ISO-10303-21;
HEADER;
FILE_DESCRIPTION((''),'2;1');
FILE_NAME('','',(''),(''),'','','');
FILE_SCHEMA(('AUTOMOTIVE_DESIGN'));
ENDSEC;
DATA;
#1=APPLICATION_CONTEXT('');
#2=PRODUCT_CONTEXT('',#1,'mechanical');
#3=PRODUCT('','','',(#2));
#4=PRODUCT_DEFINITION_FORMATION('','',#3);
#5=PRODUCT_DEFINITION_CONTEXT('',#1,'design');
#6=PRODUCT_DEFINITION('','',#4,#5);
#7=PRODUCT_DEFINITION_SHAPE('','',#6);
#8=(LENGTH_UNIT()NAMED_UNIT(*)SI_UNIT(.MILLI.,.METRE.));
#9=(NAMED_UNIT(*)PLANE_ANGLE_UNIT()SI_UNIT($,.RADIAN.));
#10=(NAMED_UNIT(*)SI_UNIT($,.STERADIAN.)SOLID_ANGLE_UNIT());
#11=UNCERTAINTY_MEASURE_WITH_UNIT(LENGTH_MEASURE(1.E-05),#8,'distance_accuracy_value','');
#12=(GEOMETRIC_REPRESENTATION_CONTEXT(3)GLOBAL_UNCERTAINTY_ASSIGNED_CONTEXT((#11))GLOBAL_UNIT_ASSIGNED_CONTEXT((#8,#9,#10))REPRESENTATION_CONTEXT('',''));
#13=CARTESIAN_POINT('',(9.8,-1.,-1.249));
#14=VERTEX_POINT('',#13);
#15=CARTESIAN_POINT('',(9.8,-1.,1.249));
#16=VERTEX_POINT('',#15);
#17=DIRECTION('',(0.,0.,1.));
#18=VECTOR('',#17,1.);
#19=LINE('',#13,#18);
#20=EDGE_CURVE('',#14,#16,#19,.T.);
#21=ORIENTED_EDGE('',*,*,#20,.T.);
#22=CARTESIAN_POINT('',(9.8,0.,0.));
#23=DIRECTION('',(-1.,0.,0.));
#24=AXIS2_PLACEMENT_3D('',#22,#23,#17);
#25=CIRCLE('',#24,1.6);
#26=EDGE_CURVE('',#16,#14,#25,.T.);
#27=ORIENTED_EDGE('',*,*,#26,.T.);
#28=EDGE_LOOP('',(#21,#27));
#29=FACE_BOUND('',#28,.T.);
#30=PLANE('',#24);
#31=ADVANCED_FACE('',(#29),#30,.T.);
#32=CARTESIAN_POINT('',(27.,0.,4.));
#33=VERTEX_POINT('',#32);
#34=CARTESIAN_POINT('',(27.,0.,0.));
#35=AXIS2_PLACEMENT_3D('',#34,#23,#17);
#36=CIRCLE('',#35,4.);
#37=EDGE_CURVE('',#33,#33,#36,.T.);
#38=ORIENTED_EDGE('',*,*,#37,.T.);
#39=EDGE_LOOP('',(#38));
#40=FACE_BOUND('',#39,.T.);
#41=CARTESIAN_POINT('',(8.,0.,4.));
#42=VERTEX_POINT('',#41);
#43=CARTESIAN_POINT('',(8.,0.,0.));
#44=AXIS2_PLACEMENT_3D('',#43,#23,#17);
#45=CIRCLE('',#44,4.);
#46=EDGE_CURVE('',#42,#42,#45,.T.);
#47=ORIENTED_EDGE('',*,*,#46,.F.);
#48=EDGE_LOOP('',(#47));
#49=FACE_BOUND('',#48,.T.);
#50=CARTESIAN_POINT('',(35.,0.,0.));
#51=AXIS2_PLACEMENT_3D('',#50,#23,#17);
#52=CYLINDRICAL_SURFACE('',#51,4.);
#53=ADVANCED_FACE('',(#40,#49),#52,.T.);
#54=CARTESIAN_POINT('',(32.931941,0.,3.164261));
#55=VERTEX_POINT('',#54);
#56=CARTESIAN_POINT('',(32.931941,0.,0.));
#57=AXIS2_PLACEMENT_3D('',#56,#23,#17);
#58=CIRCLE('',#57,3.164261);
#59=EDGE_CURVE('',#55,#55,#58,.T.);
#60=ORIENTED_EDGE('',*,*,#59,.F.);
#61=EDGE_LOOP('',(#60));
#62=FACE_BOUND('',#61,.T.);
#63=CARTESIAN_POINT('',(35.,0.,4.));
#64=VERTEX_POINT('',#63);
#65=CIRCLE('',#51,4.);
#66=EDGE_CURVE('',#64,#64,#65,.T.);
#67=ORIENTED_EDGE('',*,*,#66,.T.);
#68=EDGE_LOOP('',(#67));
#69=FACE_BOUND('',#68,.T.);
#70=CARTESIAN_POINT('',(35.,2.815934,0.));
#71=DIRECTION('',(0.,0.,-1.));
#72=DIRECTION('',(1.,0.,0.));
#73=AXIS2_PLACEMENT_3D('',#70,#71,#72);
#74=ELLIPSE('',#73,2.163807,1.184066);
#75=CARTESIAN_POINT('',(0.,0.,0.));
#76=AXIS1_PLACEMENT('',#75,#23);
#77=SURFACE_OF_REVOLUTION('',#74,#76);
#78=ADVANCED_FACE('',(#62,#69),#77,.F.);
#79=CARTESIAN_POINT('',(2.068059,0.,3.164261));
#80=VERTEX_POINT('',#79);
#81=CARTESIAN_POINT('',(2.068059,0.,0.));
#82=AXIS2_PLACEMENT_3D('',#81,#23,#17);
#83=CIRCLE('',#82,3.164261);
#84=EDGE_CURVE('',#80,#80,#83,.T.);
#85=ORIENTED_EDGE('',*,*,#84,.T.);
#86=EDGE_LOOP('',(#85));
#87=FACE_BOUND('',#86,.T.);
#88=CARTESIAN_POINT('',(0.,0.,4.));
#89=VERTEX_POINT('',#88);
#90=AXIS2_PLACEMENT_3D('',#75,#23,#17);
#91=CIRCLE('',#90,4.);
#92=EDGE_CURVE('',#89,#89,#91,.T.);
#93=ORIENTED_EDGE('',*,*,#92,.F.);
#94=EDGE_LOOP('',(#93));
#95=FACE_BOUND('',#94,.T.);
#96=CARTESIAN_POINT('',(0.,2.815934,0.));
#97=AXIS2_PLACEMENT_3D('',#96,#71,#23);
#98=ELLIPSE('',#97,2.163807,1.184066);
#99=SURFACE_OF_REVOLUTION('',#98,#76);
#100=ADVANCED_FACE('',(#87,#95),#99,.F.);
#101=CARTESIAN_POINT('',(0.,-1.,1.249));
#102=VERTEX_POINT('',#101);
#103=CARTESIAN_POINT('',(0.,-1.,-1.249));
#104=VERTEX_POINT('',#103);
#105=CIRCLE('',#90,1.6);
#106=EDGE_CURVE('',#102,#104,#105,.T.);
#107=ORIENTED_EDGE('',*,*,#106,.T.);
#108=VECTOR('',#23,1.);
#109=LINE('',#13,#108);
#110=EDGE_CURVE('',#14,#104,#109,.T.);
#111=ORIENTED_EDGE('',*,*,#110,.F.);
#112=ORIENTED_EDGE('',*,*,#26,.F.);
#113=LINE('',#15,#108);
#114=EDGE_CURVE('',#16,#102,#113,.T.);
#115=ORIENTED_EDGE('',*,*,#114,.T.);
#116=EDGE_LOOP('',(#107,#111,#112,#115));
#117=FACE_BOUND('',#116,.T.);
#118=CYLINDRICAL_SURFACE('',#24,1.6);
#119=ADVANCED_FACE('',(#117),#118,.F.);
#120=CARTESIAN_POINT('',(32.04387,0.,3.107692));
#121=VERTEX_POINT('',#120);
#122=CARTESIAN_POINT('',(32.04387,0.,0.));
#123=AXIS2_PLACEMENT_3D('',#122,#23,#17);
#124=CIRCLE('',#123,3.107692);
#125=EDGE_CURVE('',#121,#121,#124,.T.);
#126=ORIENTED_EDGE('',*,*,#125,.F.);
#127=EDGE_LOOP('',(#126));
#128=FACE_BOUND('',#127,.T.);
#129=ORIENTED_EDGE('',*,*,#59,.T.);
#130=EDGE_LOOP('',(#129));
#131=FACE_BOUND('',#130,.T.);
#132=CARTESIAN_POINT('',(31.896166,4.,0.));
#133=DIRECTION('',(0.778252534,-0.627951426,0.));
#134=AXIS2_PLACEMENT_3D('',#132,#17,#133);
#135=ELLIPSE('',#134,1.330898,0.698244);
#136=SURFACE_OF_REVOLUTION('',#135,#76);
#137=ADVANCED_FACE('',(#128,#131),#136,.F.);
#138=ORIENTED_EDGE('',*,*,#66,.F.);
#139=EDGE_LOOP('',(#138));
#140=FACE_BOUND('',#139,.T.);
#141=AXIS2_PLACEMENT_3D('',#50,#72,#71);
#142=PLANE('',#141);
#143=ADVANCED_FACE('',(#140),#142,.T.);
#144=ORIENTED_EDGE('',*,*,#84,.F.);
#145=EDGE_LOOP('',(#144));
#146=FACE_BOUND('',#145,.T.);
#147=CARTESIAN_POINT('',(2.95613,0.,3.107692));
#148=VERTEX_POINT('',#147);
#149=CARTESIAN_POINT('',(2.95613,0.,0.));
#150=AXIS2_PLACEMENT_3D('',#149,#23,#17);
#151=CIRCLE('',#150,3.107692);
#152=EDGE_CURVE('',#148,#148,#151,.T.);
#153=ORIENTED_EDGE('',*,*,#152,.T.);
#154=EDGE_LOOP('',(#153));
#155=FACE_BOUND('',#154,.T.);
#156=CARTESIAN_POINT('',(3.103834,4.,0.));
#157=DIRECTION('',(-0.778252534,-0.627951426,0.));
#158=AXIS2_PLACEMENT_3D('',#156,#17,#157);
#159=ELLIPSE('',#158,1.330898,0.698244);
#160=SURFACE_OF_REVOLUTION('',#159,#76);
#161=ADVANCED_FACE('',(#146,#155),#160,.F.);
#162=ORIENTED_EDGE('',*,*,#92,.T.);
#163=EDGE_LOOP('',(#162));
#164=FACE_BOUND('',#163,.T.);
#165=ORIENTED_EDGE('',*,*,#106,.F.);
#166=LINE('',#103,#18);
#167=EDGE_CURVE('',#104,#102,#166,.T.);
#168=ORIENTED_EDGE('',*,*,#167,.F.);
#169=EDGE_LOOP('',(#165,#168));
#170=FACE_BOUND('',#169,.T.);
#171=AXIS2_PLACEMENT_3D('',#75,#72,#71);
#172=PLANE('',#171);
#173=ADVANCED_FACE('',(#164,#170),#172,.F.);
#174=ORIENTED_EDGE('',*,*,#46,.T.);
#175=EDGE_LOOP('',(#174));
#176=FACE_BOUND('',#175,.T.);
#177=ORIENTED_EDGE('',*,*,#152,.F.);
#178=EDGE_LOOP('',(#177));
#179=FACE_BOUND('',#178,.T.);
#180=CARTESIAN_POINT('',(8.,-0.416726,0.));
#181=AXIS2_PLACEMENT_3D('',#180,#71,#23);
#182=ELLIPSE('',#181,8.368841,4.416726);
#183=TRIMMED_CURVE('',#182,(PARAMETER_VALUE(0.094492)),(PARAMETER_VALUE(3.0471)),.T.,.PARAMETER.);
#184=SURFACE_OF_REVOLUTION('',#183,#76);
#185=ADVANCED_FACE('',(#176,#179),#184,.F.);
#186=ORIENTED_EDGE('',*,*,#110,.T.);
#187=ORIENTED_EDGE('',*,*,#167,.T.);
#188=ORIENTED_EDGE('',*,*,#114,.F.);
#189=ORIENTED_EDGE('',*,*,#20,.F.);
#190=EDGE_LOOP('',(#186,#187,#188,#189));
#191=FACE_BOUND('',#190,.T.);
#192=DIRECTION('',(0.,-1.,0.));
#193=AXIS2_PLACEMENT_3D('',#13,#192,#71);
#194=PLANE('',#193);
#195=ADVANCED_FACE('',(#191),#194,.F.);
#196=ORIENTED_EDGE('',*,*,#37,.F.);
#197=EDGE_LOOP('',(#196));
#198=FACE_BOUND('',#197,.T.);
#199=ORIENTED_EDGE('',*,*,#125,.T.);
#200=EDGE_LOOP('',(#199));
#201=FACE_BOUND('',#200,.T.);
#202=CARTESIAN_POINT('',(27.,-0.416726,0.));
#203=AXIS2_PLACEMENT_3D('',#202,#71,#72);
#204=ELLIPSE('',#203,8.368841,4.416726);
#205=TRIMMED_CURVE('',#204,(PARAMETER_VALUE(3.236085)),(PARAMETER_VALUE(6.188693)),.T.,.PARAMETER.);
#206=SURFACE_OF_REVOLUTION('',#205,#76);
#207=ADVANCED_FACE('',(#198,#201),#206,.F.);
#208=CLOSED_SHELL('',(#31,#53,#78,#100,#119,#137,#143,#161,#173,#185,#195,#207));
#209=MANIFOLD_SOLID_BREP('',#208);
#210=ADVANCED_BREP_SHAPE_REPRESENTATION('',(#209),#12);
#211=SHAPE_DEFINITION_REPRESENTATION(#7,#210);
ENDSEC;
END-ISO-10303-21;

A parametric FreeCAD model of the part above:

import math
import FreeCAD as App
import Part
import Sketcher
from FreeCAD import Vector

doc = App.newDocument("Part")
body = doc.addObject("PartDesign::Body", "Body")

# Sketch on YZ plane
sketch1 = body.newObject("Sketcher::SketchObject", "Sketch")
sketch1.AttachmentSupport = (doc.getObject("YZ_Plane"), [""])
sketch1.MapMode = "FlatFace"
sketch1.addGeometry(Part.Circle(Vector(0, 0, 0), Vector(0, 0, 1), 4), False)
sketch1.addConstraint(Sketcher.Constraint("Coincident", 0, 3, -1, 1))
sketch1.addConstraint(Sketcher.Constraint("Diameter", 0, 8.0))
pad1 = body.newObject("PartDesign::Pad", "Pad")
pad1.Profile = sketch1
pad1.Length = 35

# Sketch on YZ plane
sketch2 = body.newObject("Sketcher::SketchObject", "Sketch001")
sketch2.AttachmentSupport = (doc.getObject("YZ_Plane"), [""])
sketch2.MapMode = "FlatFace"
sketch2.addGeometry(Part.LineSegment(Vector(-1, -1.249, 0), Vector(-1, 1.249, 0)), False)
sketch2.addGeometry(Part.ArcOfCircle(Part.Circle(Vector(0, 0, 0), Vector(0, 0, 1), 1.6), math.radians(-128.682187), math.radians(128.682187)), False)
sketch2.addConstraint(Sketcher.Constraint("Coincident", 0, 1, 1, 1))
sketch2.addConstraint(Sketcher.Constraint("Coincident", 1, 2, 0, 2))
sketch2.addConstraint(Sketcher.Constraint("Vertical", 0))
sketch2.addConstraint(Sketcher.Constraint("Coincident", 1, 3, -1, 1))
sketch2.addConstraint(Sketcher.Constraint("Radius", 1, 1.6))
sketch2.addConstraint(Sketcher.Constraint("DistanceX", 0, 1, -1, 1, 1.0))
pocket1 = body.newObject("PartDesign::Pocket", "Pocket")
pocket1.Profile = sketch2
pocket1.Length = 9.8
pocket1.Reversed = True

# Sketch on XY plane
sketch3 = body.newObject("Sketcher::SketchObject", "Sketch002")
sketch3.AttachmentSupport = (doc.getObject("XY_Plane"), [""])
sketch3.MapMode = "FlatFace"
sketch3.addGeometry(Part.LineSegment(Vector(8, 4, 0), Vector(0, 4, 0)), False)
sketch3.addGeometry(Part.BSplineCurve([Vector(2.068059, 3.164261, 0), Vector(1.597971, 4, 0), Vector(0, 4, 0)], [3, 3], [3.440188633, 4.71238898], False, 2, [1, 0.804418611, 1], False), False)
sketch3.addGeometry(Part.BSplineCurve([Vector(2.068059, 3.164261, 0), Vector(2.318714, 2.853612, 0), Vector(2.95613, 3.107692, 0)], [3, 3], [0, 1.038649512], False, 2, [1, 0.868154497, 1], False), False)
sketch3.addGeometry(Part.BSplineCurve([Vector(8, 4, 0), Vector(5.194688, 4, 0), Vector(2.95613, 3.107692, 0)], [3, 3], [4.71238898, 5.359264748], False, 2, [1, 0.948148367, 1], False), False)
sketch3.addGeometry(Part.LineSegment(Vector(35, 4, 0), Vector(27, 4, 0)), False)
sketch3.addGeometry(Part.BSplineCurve([Vector(32.04387, 3.107692, 0), Vector(29.805312, 4, 0), Vector(27, 4, 0)], [3, 3], [4.065513213, 4.71238898], False, 2, [1, 0.948148367, 1], False), False)
sketch3.addGeometry(Part.BSplineCurve([Vector(32.04387, 3.107692, 0), Vector(32.681286, 2.853612, 0), Vector(32.931941, 3.164261, 0)], [3, 3], [2.102943141, 3.141592654], False, 2, [1, 0.868154497, 1], False), False)
sketch3.addGeometry(Part.BSplineCurve([Vector(35, 4, 0), Vector(33.402029, 4, 0), Vector(32.931941, 3.164261, 0)], [3, 3], [1.570796327, 2.842996674], False, 2, [1, 0.804418611, 1], False), False)
sketch3.addConstraint(Sketcher.Constraint("Block", 1))
sketch3.addConstraint(Sketcher.Constraint("Block", 2))
sketch3.addConstraint(Sketcher.Constraint("Block", 3))
sketch3.addConstraint(Sketcher.Constraint("Block", 5))
sketch3.addConstraint(Sketcher.Constraint("Block", 6))
sketch3.addConstraint(Sketcher.Constraint("Block", 7))
sketch3.addConstraint(Sketcher.Constraint("Coincident", 0, 2, 1, 2))
sketch3.addConstraint(Sketcher.Constraint("Coincident", 3, 1, 0, 1))
sketch3.addConstraint(Sketcher.Constraint("Coincident", 4, 2, 5, 2))
sketch3.addConstraint(Sketcher.Constraint("Coincident", 7, 1, 4, 1))
groove = body.newObject("PartDesign::Groove", "Groove")
groove.Profile = sketch3
groove.ReferenceAxis = (sketch3, ["H_Axis"])
groove.Angle = 360

doc.recompute()
